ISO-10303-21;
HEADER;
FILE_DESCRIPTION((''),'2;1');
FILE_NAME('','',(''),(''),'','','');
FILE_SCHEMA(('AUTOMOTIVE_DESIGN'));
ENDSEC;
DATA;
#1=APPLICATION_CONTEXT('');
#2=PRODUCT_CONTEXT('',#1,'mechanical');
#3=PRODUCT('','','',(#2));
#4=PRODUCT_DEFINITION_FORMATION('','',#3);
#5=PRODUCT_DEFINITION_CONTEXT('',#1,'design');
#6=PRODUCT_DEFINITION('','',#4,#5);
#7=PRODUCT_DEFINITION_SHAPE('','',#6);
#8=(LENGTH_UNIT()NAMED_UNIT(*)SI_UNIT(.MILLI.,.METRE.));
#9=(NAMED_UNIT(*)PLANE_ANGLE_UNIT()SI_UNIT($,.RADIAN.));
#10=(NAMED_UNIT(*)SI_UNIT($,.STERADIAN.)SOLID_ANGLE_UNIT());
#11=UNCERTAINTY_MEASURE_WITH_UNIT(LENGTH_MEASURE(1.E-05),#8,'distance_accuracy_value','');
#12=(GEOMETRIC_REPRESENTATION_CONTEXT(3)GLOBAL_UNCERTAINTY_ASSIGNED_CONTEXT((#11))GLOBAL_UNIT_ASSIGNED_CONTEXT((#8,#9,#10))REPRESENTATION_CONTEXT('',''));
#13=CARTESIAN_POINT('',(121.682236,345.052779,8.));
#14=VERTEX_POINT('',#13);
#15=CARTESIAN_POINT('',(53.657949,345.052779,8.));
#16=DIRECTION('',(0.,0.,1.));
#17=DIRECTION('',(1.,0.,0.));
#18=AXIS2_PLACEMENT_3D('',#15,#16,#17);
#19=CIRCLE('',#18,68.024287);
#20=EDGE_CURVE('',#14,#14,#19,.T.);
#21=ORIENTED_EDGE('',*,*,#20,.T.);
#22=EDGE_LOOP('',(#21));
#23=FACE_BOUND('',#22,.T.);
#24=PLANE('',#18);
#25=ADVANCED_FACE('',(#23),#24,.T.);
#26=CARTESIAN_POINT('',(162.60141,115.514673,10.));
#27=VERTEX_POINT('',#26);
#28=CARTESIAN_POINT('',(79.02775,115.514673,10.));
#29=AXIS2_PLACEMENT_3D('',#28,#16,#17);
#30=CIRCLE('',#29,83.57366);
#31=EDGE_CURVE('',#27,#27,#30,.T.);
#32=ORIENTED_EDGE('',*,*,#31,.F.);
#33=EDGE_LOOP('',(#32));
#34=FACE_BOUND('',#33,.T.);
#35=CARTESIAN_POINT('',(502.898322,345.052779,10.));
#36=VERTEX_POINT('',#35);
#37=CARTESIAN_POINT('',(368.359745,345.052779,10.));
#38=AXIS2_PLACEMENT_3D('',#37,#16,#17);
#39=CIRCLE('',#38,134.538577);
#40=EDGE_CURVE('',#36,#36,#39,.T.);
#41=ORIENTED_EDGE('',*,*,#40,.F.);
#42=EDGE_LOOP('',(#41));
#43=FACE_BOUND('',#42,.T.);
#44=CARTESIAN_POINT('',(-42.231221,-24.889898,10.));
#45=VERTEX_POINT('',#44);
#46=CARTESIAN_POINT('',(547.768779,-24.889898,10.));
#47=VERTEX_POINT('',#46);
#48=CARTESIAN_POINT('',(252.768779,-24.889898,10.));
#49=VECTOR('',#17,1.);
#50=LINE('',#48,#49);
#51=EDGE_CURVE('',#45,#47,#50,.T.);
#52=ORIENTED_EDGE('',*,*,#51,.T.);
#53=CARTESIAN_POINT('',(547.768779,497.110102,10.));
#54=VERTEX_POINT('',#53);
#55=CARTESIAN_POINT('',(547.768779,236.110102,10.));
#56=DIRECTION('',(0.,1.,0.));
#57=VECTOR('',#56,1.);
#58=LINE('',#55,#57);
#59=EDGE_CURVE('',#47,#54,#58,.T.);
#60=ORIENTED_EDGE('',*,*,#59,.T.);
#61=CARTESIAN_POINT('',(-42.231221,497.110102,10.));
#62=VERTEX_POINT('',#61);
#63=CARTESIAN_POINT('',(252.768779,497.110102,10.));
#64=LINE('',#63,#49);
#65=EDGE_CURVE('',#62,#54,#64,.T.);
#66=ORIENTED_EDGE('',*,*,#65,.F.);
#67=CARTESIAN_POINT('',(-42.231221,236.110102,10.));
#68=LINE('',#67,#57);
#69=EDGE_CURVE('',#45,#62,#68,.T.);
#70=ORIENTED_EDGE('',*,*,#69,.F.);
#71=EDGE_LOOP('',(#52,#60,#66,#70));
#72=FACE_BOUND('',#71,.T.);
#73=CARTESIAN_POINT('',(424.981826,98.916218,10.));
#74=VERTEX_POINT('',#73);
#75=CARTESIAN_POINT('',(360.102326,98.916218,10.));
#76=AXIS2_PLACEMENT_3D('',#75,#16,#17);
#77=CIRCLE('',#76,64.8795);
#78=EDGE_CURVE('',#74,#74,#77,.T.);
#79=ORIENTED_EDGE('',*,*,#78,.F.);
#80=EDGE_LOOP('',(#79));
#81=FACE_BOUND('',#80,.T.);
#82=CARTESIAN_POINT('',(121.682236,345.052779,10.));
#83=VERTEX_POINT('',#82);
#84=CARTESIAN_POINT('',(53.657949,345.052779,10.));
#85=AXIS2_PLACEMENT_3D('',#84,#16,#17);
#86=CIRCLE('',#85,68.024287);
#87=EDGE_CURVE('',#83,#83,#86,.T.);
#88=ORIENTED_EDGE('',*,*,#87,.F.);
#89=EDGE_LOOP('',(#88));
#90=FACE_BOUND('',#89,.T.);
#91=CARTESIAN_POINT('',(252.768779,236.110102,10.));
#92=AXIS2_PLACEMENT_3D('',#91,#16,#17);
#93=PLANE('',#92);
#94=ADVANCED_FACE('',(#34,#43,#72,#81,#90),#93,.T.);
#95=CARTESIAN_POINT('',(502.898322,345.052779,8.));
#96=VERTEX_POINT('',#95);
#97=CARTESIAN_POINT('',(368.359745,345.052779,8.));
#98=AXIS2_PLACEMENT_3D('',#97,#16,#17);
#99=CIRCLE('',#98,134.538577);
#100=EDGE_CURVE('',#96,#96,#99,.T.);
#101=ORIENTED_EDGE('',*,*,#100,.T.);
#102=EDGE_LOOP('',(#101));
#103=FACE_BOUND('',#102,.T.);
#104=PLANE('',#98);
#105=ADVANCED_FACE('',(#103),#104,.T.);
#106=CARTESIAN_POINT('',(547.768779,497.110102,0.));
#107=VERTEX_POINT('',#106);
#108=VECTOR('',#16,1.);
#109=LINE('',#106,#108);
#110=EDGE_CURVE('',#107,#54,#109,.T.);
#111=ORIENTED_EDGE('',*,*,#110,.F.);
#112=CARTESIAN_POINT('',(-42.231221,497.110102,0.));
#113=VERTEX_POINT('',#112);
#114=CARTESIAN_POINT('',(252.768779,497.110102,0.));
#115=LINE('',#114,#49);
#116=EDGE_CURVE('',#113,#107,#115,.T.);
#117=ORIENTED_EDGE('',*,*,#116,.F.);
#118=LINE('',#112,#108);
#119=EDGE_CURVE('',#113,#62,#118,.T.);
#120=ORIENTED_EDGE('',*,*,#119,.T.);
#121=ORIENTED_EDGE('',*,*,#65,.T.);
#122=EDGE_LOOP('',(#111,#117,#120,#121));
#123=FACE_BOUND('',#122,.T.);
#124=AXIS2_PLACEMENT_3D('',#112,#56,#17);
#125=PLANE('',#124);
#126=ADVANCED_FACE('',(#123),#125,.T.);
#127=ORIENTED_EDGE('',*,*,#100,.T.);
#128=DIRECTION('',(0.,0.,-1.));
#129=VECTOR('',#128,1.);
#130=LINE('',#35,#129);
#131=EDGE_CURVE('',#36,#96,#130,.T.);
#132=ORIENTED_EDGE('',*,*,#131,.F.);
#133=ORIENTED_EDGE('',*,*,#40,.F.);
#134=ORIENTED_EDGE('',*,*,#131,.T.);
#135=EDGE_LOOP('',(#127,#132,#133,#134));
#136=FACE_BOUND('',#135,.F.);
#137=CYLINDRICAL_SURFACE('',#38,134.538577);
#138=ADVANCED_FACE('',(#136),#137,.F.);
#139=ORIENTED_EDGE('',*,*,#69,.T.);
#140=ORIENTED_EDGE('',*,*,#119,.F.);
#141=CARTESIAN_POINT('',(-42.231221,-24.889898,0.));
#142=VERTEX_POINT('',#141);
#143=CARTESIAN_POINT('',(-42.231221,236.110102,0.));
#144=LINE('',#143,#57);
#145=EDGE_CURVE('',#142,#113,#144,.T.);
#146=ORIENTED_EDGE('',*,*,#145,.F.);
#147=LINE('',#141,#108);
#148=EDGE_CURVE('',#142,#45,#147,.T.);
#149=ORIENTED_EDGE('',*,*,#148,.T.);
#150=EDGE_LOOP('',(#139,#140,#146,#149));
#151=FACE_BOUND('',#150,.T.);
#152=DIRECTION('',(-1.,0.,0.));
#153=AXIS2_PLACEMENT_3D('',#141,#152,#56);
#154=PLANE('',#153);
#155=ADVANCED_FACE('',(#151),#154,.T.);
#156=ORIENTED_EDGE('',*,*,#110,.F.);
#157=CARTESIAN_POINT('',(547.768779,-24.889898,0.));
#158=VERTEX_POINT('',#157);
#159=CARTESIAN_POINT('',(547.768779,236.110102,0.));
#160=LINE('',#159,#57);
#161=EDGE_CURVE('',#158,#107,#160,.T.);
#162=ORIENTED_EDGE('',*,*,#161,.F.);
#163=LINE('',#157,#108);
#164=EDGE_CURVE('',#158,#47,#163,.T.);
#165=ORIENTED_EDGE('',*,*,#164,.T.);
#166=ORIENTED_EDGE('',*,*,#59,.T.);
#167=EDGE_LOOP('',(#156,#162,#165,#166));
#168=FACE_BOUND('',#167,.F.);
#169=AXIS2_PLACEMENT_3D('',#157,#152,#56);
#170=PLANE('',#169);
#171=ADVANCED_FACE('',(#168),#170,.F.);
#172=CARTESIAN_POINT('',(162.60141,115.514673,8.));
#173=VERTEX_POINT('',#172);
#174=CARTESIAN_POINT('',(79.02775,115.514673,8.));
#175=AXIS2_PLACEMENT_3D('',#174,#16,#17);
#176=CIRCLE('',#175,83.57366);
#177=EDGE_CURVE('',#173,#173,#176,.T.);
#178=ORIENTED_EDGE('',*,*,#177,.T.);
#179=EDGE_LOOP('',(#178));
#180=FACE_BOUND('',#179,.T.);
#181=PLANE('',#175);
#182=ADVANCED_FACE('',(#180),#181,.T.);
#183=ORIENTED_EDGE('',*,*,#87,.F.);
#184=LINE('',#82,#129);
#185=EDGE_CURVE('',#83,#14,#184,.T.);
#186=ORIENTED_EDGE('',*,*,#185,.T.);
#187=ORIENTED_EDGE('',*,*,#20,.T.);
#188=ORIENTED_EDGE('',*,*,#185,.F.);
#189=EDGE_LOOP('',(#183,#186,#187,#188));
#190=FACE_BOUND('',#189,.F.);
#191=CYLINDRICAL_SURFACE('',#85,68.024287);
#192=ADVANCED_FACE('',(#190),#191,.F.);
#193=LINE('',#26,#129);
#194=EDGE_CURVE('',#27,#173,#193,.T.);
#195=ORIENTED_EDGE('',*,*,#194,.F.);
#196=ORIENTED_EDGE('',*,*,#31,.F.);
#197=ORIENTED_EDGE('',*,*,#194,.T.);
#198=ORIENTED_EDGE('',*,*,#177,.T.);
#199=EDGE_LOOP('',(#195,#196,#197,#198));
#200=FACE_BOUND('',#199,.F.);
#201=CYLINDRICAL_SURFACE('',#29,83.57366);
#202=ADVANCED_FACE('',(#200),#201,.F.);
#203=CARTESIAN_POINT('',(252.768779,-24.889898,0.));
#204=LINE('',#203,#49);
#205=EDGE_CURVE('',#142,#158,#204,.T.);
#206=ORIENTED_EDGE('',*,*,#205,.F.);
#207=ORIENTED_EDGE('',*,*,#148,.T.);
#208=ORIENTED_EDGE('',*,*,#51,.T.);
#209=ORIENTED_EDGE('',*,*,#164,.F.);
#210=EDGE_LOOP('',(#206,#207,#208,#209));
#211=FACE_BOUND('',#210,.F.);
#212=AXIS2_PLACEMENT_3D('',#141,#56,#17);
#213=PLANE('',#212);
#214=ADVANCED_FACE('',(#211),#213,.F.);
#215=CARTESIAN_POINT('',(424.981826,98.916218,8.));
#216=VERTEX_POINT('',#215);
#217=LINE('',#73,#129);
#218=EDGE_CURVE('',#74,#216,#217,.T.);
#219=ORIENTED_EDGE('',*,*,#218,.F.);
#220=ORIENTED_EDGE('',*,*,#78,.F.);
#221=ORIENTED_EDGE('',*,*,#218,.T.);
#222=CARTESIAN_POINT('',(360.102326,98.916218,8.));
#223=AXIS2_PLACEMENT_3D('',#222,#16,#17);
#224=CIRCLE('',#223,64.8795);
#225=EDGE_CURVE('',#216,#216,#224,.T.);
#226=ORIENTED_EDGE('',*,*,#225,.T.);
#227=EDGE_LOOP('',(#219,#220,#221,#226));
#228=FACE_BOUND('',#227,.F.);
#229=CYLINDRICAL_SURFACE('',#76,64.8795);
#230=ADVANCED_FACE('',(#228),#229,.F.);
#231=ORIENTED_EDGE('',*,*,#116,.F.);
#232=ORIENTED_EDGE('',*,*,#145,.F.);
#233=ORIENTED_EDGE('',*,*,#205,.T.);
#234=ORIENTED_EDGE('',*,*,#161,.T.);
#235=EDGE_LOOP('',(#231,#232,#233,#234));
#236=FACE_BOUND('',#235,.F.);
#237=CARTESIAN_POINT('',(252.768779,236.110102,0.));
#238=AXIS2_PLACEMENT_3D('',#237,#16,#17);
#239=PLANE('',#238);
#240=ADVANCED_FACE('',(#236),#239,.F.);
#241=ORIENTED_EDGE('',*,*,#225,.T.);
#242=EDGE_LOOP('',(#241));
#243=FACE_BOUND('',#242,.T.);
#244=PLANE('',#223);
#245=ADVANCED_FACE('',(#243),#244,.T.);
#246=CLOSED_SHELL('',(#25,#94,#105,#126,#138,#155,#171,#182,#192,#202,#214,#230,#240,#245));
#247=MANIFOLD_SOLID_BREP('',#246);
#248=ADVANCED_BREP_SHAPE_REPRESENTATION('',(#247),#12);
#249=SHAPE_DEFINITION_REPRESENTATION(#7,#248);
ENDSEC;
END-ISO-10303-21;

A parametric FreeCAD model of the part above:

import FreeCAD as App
import Part
import Sketcher

V = App.Vector
Q = App.Units.Quantity


def add_polygon(sketch, points):
    """Adds a closed chain of lines whose ends are joined by coincident constraints."""
    first, n = sketch.GeometryCount, len(points)
    for a, b in zip(points, points[1:] + points[:1]):
        sketch.addGeometry(Part.LineSegment(App.Vector(*a, 0), App.Vector(*b, 0)), False)
    for i in range(n):
        sketch.addConstraint(Sketcher.Constraint("Coincident", first + i, 2, first + (i + 1) % n, 1))

doc = App.newDocument("Part")
body = doc.addObject("PartDesign::Body", "Body")

# Sketch on XY plane
sketch1 = doc.addObject("Sketcher::SketchObject", "Sketch")
body.addObject(sketch1)
sketch1.AttachmentSupport = (doc.XY_Plane, [""])
sketch1.MapMode = "FlatFace"
add_polygon(sketch1, [(-42.231221, 497.110102), (-42.231221, -24.889898), (547.768779, -24.889898), (547.768779, 497.110102)])  # lines 0-3
sketch1.addConstraint([
    Sketcher.Constraint("Vertical", 0),
    Sketcher.Constraint("Horizontal", 1),
    Sketcher.Constraint("Vertical", 2),
    Sketcher.Constraint("Horizontal", 3),
    Sketcher.Constraint("DistanceX", 1, 1, 1, 2, Q("590 mm")),
    Sketcher.Constraint("DistanceY", 0, 2, 0, 1, Q("522 mm")),
    Sketcher.Constraint("DistanceY", -1, 1, 2, 2, Q("497.110102 mm")),
    Sketcher.Constraint("DistanceX", 0, 2, -1, 1, Q("42.231221 mm")),
])
pad1 = doc.addObject("PartDesign::Pad", "Pad")
body.addObject(pad1)
pad1.Profile = sketch1
pad1.Length = 10

# Sketch on XY plane
sketch2 = doc.addObject("Sketcher::SketchObject", "Sketch001")
body.addObject(sketch2)
sketch2.AttachmentSupport = (doc.XY_Plane, [""])
sketch2.MapMode = "FlatFace"
sketch2.AttachmentOffset = App.Placement(V(0, 0, 10), App.Rotation())
sketch2.addGeometry([
    Part.Circle(V(53.657949, 345.052779, 0), V(0, 0, 1), 68.024287),
    Part.Circle(V(368.359745, 345.052779, 0), V(0, 0, 1), 134.538577),
    Part.Circle(V(79.02775, 115.514673, 0), V(0, 0, 1), 83.57366),
    Part.Circle(V(360.102326, 98.916218, 0), V(0, 0, 1), 64.8795),
], False)
sketch2.addConstraint([
    Sketcher.Constraint("Horizontal", 0, 3, 1, 3),
    Sketcher.Constraint("Diameter", 3, Q("129.759 mm")),
    Sketcher.Constraint("Diameter", 2, Q("167.14732 mm")),
    Sketcher.Constraint("Diameter", 0, Q("136.048574 mm")),
    Sketcher.Constraint("Diameter", 1, Q("269.077154 mm")),
    Sketcher.Constraint("DistanceX", 0, 3, 2, 3, Q("25.369801 mm")),
    Sketcher.Constraint("DistanceX", -1, 1, 0, 3, Q("53.657949 mm")),
    Sketcher.Constraint("DistanceY", -1, 1, 0, 3, Q("345.052779 mm")),
    Sketcher.Constraint("DistanceY", -1, 1, 3, 3, Q("98.916218 mm")),
    Sketcher.Constraint("DistanceX", 3, 3, 1, 3, Q("8.257419 mm")),
    Sketcher.Constraint("DistanceX", -1, 1, 1, 3, Q("368.359745 mm")),
    Sketcher.Constraint("DistanceY", -1, 1, 2, 3, Q("115.514673 mm")),
])
pocket1 = doc.addObject("PartDesign::Pocket", "Pocket")
body.addObject(pocket1)
pocket1.Profile = sketch2
pocket1.Length = 2

doc.recompute()
